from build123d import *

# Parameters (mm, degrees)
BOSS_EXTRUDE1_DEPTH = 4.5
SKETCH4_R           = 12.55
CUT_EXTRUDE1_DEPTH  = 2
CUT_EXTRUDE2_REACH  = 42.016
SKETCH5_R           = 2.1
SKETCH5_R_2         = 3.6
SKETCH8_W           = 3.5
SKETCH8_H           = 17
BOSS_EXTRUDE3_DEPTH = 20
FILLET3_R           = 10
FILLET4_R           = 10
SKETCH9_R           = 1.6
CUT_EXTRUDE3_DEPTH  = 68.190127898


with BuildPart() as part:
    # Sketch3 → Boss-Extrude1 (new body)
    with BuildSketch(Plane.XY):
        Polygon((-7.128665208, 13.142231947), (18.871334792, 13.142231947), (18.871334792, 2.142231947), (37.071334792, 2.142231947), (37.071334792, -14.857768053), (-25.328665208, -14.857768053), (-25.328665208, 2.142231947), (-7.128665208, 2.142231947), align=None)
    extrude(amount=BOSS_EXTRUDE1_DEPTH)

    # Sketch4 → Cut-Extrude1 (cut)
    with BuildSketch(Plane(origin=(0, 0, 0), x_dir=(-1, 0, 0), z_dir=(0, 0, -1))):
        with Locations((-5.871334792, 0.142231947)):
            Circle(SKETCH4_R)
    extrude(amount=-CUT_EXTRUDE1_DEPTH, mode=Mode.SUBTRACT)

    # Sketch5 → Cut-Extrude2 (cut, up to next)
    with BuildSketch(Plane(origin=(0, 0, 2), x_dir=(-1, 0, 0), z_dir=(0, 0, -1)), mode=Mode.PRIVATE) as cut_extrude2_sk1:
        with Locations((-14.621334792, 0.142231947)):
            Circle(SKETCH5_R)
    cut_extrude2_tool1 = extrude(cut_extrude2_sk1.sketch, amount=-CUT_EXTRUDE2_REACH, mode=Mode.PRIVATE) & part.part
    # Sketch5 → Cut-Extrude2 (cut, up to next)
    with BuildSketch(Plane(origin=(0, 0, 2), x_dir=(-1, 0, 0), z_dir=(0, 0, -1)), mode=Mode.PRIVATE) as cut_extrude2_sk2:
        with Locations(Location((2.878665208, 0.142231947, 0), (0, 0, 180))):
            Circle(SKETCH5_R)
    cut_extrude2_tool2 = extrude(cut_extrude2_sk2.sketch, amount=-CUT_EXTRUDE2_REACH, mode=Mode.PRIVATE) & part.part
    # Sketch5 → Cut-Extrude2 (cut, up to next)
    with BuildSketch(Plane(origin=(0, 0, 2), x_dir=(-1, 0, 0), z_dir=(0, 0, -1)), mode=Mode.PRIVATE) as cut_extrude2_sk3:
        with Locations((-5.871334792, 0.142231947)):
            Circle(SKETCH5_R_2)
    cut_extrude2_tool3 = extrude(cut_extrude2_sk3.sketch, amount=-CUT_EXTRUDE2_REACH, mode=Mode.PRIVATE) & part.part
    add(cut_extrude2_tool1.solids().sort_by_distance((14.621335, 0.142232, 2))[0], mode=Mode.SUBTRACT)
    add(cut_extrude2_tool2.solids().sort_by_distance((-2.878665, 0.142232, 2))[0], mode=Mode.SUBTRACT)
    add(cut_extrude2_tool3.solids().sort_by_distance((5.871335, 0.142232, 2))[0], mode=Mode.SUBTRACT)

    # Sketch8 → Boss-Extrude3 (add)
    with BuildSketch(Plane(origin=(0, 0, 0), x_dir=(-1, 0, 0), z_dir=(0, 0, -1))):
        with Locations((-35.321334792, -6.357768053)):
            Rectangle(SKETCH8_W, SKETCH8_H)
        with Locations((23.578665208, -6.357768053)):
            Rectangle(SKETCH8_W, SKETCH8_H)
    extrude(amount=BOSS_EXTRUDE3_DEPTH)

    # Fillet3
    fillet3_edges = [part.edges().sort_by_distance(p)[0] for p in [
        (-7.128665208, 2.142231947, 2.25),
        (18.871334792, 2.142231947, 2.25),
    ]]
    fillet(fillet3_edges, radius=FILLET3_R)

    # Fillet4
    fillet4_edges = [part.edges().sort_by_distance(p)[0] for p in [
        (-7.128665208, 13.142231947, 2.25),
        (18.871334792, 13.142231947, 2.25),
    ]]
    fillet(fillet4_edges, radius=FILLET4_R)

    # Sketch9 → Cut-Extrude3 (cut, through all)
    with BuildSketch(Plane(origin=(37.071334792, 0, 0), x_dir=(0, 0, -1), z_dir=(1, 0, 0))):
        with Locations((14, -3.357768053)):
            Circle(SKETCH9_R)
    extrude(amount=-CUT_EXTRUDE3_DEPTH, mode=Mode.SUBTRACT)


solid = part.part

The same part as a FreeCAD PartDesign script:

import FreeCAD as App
import Part
import Sketcher
from FreeCAD import Vector
Q = App.Units.Quantity


def edges_at(feature, points):
    """Names of the edges that pass closest to the given points."""
    edges = feature.Shape.Edges
    near = lambda p: min(range(len(edges)), key=lambda i: edges[i].distToShape(Part.Vertex(*p))[0])
    return sorted({f"Edge{near(p) + 1}" for p in points})

doc = App.newDocument("Part")
params = doc.addObject("Spreadsheet::Sheet", "Params")
for row, (alias, value) in enumerate([
    ("sketch1_width", "26 mm"),
    ("sketch1_height", "11 mm"),
    ("sketch1_height2", "17 mm"),
    ("sketch1_width2", "18.2 mm"),
    ("pad1_length", "4.5 mm"),
    ("sketch2_diameter", "25.1 mm"),
    ("pocket1_length", "2 mm"),
    ("sketch3_diameter", "4.2 mm"),
    ("sketch4_diameter", "4.2 mm"),
    ("sketch5_diameter", "7.2 mm"),
    ("sketch6_height", "17 mm"),
    ("sketch6_width", "3.5 mm"),
    ("pad2_length", "20 mm"),
    ("fillet_radius", "10 mm"),
    ("fillet2_radius", "10 mm"),
    ("sketch7_diameter", "3.2 mm"),
], start=1):
    params.set(f"A{row}", alias)
    params.set(f"B{row}", "=" + value)
    params.setAlias(f"B{row}", alias)

body = doc.addObject("PartDesign::Body", "Body")

# Sketch on XY plane
sketch1 = body.newObject("Sketcher::SketchObject", "Sketch")
sketch1.AttachmentSupport = (doc.getObject("XY_Plane"), [""])
sketch1.MapMode = "FlatFace"
sketch1.addGeometry(Part.LineSegment(Vector(19, 13, 0), Vector(-7, 13, 0)), False)
sketch1.addGeometry(Part.LineSegment(Vector(-7, 13, 0), Vector(-7, 2, 0)), False)
sketch1.addGeometry(Part.LineSegment(Vector(-7, 2, 0), Vector(-25, 2, 0)), False)
sketch1.addGeometry(Part.LineSegment(Vector(-25, 2, 0), Vector(-25, -15, 0)), False)
sketch1.addGeometry(Part.LineSegment(Vector(-25, -15, 0), Vector(37, -15, 0)), False)
sketch1.addGeometry(Part.LineSegment(Vector(37, -15, 0), Vector(37, 2, 0)), False)
sketch1.addGeometry(Part.LineSegment(Vector(37, 2, 0), Vector(19, 2, 0)), False)
sketch1.addGeometry(Part.LineSegment(Vector(19, 2, 0), Vector(19, 13, 0)), False)
sketch1.addConstraint(Sketcher.Constraint("Coincident", 0, 2, 1, 1))
sketch1.addConstraint(Sketcher.Constraint("Coincident", 1, 2, 2, 1))
sketch1.addConstraint(Sketcher.Constraint("Coincident", 2, 2, 3, 1))
sketch1.addConstraint(Sketcher.Constraint("Coincident", 3, 2, 4, 1))
sketch1.addConstraint(Sketcher.Constraint("Coincident", 4, 2, 5, 1))
sketch1.addConstraint(Sketcher.Constraint("Coincident", 5, 2, 6, 1))
sketch1.addConstraint(Sketcher.Constraint("Coincident", 6, 2, 7, 1))
sketch1.addConstraint(Sketcher.Constraint("Coincident", 7, 2, 0, 1))
sketch1.addConstraint(Sketcher.Constraint("Horizontal", 0))
sketch1.addConstraint(Sketcher.Constraint("Vertical", 1))
sketch1.addConstraint(Sketcher.Constraint("Horizontal", 2))
sketch1.addConstraint(Sketcher.Constraint("Vertical", 3))
sketch1.addConstraint(Sketcher.Constraint("Horizontal", 4))
sketch1.addConstraint(Sketcher.Constraint("Vertical", 5))
sketch1.addConstraint(Sketcher.Constraint("Horizontal", 6))
sketch1.addConstraint(Sketcher.Constraint("Vertical", 7))
sketch1.addConstraint(Sketcher.Constraint("Horizontal", 2, 2, 5, 2))
sketch1.addConstraint(Sketcher.Constraint("Equal", 2, 6))
sketch1.addConstraint(Sketcher.Constraint("DistanceX", 0, 2, 0, 1, Q("26 mm")))
sketch1.addConstraint(Sketcher.Constraint("DistanceY", 1, 2, 1, 1, Q("11 mm")))
sketch1.addConstraint(Sketcher.Constraint("DistanceY", 3, 2, 3, 1, Q("17 mm")))
sketch1.addConstraint(Sketcher.Constraint("DistanceX", 2, 2, 2, 1, Q("18.2 mm")))
sketch1.addConstraint(Sketcher.Constraint("DistanceY", -1, 1, 0, 2, Q("13.142232 mm")))
sketch1.addConstraint(Sketcher.Constraint("DistanceX", 0, 2, -1, 1, Q("7.128665 mm")))
sketch1.setExpression("Constraints[18]", "Params.sketch1_width")
sketch1.setExpression("Constraints[19]", "Params.sketch1_height")
sketch1.setExpression("Constraints[20]", "Params.sketch1_height2")
sketch1.setExpression("Constraints[21]", "Params.sketch1_width2")
pad1 = body.newObject("PartDesign::Pad", "Pad")
pad1.Profile = sketch1
pad1.setExpression("Length", "Params.pad1_length")

# Sketch on XY plane
sketch2 = body.newObject("Sketcher::SketchObject", "Sketch001")
sketch2.AttachmentSupport = (doc.getObject("XY_Plane"), [""])
sketch2.MapMode = "FlatFace"
sketch2.addGeometry(Part.Circle(Vector(6, 0, 0), Vector(0, 0, 1), 13), False)
sketch2.addConstraint(Sketcher.Constraint("Diameter", 0, Q("25.1 mm")))
sketch2.addConstraint(Sketcher.Constraint("DistanceY", -1, 1, 0, 3, Q("0.142232 mm")))
sketch2.addConstraint(Sketcher.Constraint("DistanceX", -1, 1, 0, 3, Q("5.871335 mm")))
sketch2.setExpression("Constraints[0]", "Params.sketch2_diameter")
pocket1 = body.newObject("PartDesign::Pocket", "Pocket")
pocket1.Profile = sketch2
pocket1.setExpression("Length", "Params.pocket1_length")
pocket1.Reversed = True

# Sketch on XY plane
sketch3 = body.newObject("Sketcher::SketchObject", "Sketch002")
sketch3.AttachmentSupport = (doc.getObject("XY_Plane"), [""])
sketch3.MapMode = "FlatFace"
sketch3.AttachmentOffset = App.Placement(Vector(0, 0, 2), App.Rotation())
sketch3.addGeometry(Part.Circle(Vector(14.6, 0.1, 0), Vector(0, 0, 1), 2.1), False)
sketch3.addConstraint(Sketcher.Constraint("Diameter", 0, Q("4.2 mm")))
sketch3.addConstraint(Sketcher.Constraint("DistanceY", -1, 1, 0, 3, Q("0.142232 mm")))
sketch3.addConstraint(Sketcher.Constraint("DistanceX", -1, 1, 0, 3, Q("14.621335 mm")))
sketch3.setExpression("Constraints[0]", "Params.sketch3_diameter")
pocket2 = body.newObject("PartDesign::Pocket", "Pocket001")
pocket2.Profile = sketch3
pocket2.Type = "UpToFirst"
pocket2.Reversed = True

# Sketch on XY plane
sketch4 = body.newObject("Sketcher::SketchObject", "Sketch003")
sketch4.AttachmentSupport = (doc.getObject("XY_Plane"), [""])
sketch4.MapMode = "FlatFace"
sketch4.AttachmentOffset = App.Placement(Vector(0, 0, 2), App.Rotation())
sketch4.addGeometry(Part.Circle(Vector(-2.9, 0.1, 0), Vector(0, 0, 1), 2.1), False)
sketch4.addConstraint(Sketcher.Constraint("Diameter", 0, Q("4.2 mm")))
sketch4.addConstraint(Sketcher.Constraint("DistanceY", -1, 1, 0, 3, Q("0.142232 mm")))
sketch4.addConstraint(Sketcher.Constraint("DistanceX", 0, 3, -1, 1, Q("2.878665 mm")))
sketch4.setExpression("Constraints[0]", "Params.sketch4_diameter")
pocket3 = body.newObject("PartDesign::Pocket", "Pocket002")
pocket3.Profile = sketch4
pocket3.Type = "UpToFirst"
pocket3.Reversed = True

# Sketch on XY plane
sketch5 = body.newObject("Sketcher::SketchObject", "Sketch004")
sketch5.AttachmentSupport = (doc.getObject("XY_Plane"), [""])
sketch5.MapMode = "FlatFace"
sketch5.AttachmentOffset = App.Placement(Vector(0, 0, 2), App.Rotation())
sketch5.addGeometry(Part.Circle(Vector(5.9, 0.1, 0), Vector(0, 0, 1), 3.6), False)
sketch5.addConstraint(Sketcher.Constraint("Diameter", 0, Q("7.2 mm")))
sketch5.addConstraint(Sketcher.Constraint("DistanceY", -1, 1, 0, 3, Q("0.142232 mm")))
sketch5.addConstraint(Sketcher.Constraint("DistanceX", -1, 1, 0, 3, Q("5.871335 mm")))
sketch5.setExpression("Constraints[0]", "Params.sketch5_diameter")
pocket4 = body.newObject("PartDesign::Pocket", "Pocket003")
pocket4.Profile = sketch5
pocket4.Type = "UpToFirst"
pocket4.Reversed = True

# Sketch on XY plane
sketch6 = body.newObject("Sketcher::SketchObject", "Sketch005")
sketch6.AttachmentSupport = (doc.getObject("XY_Plane"), [""])
sketch6.MapMode = "FlatFace"
sketch6.addGeometry(Part.LineSegment(Vector(37.1, 2.1, 0), Vector(37.1, -14.9, 0)), False)
sketch6.addGeometry(Part.LineSegment(Vector(37.1, -14.9, 0), Vector(33.6, -14.9, 0)), False)
sketch6.addGeometry(Part.LineSegment(Vector(33.6, -14.9, 0), Vector(33.6, 2.1, 0)), False)
sketch6.addGeometry(Part.LineSegment(Vector(33.6, 2.1, 0), Vector(37.1, 2.1, 0)), False)
sketch6.addGeometry(Part.LineSegment(Vector(-21.8, 2.1, 0), Vector(-21.8, -14.9, 0)), False)
sketch6.addGeometry(Part.LineSegment(Vector(-21.8, -14.9, 0), Vector(-25.3, -14.9, 0)), False)
sketch6.addGeometry(Part.LineSegment(Vector(-25.3, -14.9, 0), Vector(-25.3, 2.1, 0)), False)
sketch6.addGeometry(Part.LineSegment(Vector(-25.3, 2.1, 0), Vector(-21.8, 2.1, 0)), False)
sketch6.addConstraint(Sketcher.Constraint("Coincident", 0, 2, 1, 1))
sketch6.addConstraint(Sketcher.Constraint("Coincident", 1, 2, 2, 1))
sketch6.addConstraint(Sketcher.Constraint("Coincident", 2, 2, 3, 1))
sketch6.addConstraint(Sketcher.Constraint("Coincident", 3, 2, 0, 1))
sketch6.addConstraint(Sketcher.Constraint("Coincident", 4, 2, 5, 1))
sketch6.addConstraint(Sketcher.Constraint("Coincident", 5, 2, 6, 1))
sketch6.addConstraint(Sketcher.Constraint("Coincident", 6, 2, 7, 1))
sketch6.addConstraint(Sketcher.Constraint("Coincident", 7, 2, 4, 1))
sketch6.addConstraint(Sketcher.Constraint("Vertical", 0))
sketch6.addConstraint(Sketcher.Constraint("Horizontal", 1))
sketch6.addConstraint(Sketcher.Constraint("Vertical", 2))
sketch6.addConstraint(Sketcher.Constraint("Horizontal", 3))
sketch6.addConstraint(Sketcher.Constraint("Vertical", 4))
sketch6.addConstraint(Sketcher.Constraint("Horizontal", 5))
sketch6.addConstraint(Sketcher.Constraint("Vertical", 6))
sketch6.addConstraint(Sketcher.Constraint("Horizontal", 7))
sketch6.addConstraint(Sketcher.Constraint("Horizontal", 1, 2, 4, 2))
sketch6.addConstraint(Sketcher.Constraint("Horizontal", 3, 2, 6, 2))
sketch6.addConstraint(Sketcher.Constraint("Equal", 3, 5))
sketch6.addConstraint(Sketcher.Constraint("DistanceY", 0, 2, 0, 1, Q("17 mm")))
sketch6.addConstraint(Sketcher.Constraint("DistanceX", 1, 2, 1, 1, Q("3.5 mm")))
sketch6.addConstraint(Sketcher.Constraint("DistanceX", 4, 2, 1, 2, Q("55.4 mm")))
sketch6.addConstraint(Sketcher.Constraint("DistanceY", 0, 2, -1, 1, Q("14.857768 mm")))
sketch6.addConstraint(Sketcher.Constraint("DistanceX", -1, 1, 0, 2, Q("37.071335 mm")))
sketch6.setExpression("Constraints[19]", "Params.sketch6_height")
sketch6.setExpression("Constraints[20]", "Params.sketch6_width")
pad2 = body.newObject("PartDesign::Pad", "Pad001")
pad2.Profile = sketch6
pad2.setExpression("Length", "Params.pad2_length")
pad2.Reversed = True
doc.recompute()

fillet = body.newObject("PartDesign::Fillet", "Fillet")
fillet.Base = (pad2, edges_at(pad2, [(-7.129, 2.142, 2.25), (18.871, 2.142, 2.25)]))
fillet.setExpression("Radius", "Params.fillet_radius")
doc.recompute()

fillet2 = body.newObject("PartDesign::Fillet", "Fillet001")
fillet2.Base = (fillet, edges_at(fillet, [(-7.129, 13.142, 2.25), (18.871, 13.142, 2.25)]))
fillet2.setExpression("Radius", "Params.fillet2_radius")

# Sketch on YZ plane
sketch7 = body.newObject("Sketcher::SketchObject", "Sketch006")
sketch7.AttachmentSupport = (doc.getObject("YZ_Plane"), [""])
sketch7.MapMode = "FlatFace"
sketch7.AttachmentOffset = App.Placement(Vector(0, 0, 37.071335), App.Rotation())
sketch7.addGeometry(Part.Circle(Vector(-3.4, -14, 0), Vector(0, 0, 1), 1.6), False)
sketch7.addConstraint(Sketcher.Constraint("Diameter", 0, Q("3.2 mm")))
sketch7.addConstraint(Sketcher.Constraint("DistanceY", 0, 3, -1, 1, Q("14 mm")))
sketch7.addConstraint(Sketcher.Constraint("DistanceX", 0, 3, -1, 1, Q("3.357768 mm")))
sketch7.setExpression("Constraints[0]", "Params.sketch7_diameter")
pocket5 = body.newObject("PartDesign::Pocket", "Pocket004")
pocket5.Profile = sketch7
pocket5.Type = "ThroughAll"

doc.recompute()
